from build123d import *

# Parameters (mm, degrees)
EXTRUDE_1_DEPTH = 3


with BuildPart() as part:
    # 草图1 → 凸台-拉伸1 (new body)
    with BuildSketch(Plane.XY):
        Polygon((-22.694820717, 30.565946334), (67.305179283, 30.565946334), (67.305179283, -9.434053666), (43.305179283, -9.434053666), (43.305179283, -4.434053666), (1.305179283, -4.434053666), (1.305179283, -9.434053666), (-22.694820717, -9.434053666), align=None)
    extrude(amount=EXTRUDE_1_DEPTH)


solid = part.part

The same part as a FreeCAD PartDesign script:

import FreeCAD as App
import Part
import Sketcher

V = App.Vector


def add_polygon(sketch, points):
    """Adds a closed chain of lines whose ends are joined by coincident constraints."""
    first, n = sketch.GeometryCount, len(points)
    for a, b in zip(points, points[1:] + points[:1]):
        sketch.addGeometry(Part.LineSegment(App.Vector(*a, 0), App.Vector(*b, 0)), False)
    for i in range(n):
        sketch.addConstraint(Sketcher.Constraint("Coincident", first + i, 2, first + (i + 1) % n, 1))

doc = App.newDocument("Part")
body = doc.addObject("PartDesign::Body", "Body")

sketch1 = body.newObject("Sketcher::SketchObject", "Sketch")
sketch1.AttachmentSupport = (doc.getObject("XY_Plane"), [""])
sketch1.MapMode = "FlatFace"
add_polygon(sketch1, [(67, 31), (-23, 31), (-23, -9), (1, -9), (1, -4), (43, -4), (43, -9), (67, -9)])
sketch1.addConstraint([
    Sketcher.Constraint("Horizontal", 0),
    Sketcher.Constraint("Vertical", 1),
    Sketcher.Constraint("Horizontal", 2),
    Sketcher.Constraint("Vertical", 3),
    Sketcher.Constraint("Horizontal", 4),
    Sketcher.Constraint("Vertical", 5),
    Sketcher.Constraint("Horizontal", 6),
    Sketcher.Constraint("Vertical", 7),
    Sketcher.Constraint("Horizontal", 2, 2, 5, 2),
    Sketcher.Constraint("Equal", 2, 6),
    Sketcher.Constraint("DistanceX", 0, 2, 0, 1, 90.0),
    Sketcher.Constraint("DistanceX", 2, 1, 2, 2, 24.0),
    Sketcher.Constraint("DistanceY", 1, 2, 1, 1, 40.0),
    Sketcher.Constraint("DistanceY", 3, 1, 3, 2, 5.0),
    Sketcher.Constraint("DistanceX", 0, 2, -1, 1, 22.694821),
    Sketcher.Constraint("DistanceY", -1, 1, 0, 2, 30.565946),
])
pad1 = body.newObject("PartDesign::Pad", "Pad")
pad1.Profile = sketch1
pad1.Length = 3

doc.recompute()
